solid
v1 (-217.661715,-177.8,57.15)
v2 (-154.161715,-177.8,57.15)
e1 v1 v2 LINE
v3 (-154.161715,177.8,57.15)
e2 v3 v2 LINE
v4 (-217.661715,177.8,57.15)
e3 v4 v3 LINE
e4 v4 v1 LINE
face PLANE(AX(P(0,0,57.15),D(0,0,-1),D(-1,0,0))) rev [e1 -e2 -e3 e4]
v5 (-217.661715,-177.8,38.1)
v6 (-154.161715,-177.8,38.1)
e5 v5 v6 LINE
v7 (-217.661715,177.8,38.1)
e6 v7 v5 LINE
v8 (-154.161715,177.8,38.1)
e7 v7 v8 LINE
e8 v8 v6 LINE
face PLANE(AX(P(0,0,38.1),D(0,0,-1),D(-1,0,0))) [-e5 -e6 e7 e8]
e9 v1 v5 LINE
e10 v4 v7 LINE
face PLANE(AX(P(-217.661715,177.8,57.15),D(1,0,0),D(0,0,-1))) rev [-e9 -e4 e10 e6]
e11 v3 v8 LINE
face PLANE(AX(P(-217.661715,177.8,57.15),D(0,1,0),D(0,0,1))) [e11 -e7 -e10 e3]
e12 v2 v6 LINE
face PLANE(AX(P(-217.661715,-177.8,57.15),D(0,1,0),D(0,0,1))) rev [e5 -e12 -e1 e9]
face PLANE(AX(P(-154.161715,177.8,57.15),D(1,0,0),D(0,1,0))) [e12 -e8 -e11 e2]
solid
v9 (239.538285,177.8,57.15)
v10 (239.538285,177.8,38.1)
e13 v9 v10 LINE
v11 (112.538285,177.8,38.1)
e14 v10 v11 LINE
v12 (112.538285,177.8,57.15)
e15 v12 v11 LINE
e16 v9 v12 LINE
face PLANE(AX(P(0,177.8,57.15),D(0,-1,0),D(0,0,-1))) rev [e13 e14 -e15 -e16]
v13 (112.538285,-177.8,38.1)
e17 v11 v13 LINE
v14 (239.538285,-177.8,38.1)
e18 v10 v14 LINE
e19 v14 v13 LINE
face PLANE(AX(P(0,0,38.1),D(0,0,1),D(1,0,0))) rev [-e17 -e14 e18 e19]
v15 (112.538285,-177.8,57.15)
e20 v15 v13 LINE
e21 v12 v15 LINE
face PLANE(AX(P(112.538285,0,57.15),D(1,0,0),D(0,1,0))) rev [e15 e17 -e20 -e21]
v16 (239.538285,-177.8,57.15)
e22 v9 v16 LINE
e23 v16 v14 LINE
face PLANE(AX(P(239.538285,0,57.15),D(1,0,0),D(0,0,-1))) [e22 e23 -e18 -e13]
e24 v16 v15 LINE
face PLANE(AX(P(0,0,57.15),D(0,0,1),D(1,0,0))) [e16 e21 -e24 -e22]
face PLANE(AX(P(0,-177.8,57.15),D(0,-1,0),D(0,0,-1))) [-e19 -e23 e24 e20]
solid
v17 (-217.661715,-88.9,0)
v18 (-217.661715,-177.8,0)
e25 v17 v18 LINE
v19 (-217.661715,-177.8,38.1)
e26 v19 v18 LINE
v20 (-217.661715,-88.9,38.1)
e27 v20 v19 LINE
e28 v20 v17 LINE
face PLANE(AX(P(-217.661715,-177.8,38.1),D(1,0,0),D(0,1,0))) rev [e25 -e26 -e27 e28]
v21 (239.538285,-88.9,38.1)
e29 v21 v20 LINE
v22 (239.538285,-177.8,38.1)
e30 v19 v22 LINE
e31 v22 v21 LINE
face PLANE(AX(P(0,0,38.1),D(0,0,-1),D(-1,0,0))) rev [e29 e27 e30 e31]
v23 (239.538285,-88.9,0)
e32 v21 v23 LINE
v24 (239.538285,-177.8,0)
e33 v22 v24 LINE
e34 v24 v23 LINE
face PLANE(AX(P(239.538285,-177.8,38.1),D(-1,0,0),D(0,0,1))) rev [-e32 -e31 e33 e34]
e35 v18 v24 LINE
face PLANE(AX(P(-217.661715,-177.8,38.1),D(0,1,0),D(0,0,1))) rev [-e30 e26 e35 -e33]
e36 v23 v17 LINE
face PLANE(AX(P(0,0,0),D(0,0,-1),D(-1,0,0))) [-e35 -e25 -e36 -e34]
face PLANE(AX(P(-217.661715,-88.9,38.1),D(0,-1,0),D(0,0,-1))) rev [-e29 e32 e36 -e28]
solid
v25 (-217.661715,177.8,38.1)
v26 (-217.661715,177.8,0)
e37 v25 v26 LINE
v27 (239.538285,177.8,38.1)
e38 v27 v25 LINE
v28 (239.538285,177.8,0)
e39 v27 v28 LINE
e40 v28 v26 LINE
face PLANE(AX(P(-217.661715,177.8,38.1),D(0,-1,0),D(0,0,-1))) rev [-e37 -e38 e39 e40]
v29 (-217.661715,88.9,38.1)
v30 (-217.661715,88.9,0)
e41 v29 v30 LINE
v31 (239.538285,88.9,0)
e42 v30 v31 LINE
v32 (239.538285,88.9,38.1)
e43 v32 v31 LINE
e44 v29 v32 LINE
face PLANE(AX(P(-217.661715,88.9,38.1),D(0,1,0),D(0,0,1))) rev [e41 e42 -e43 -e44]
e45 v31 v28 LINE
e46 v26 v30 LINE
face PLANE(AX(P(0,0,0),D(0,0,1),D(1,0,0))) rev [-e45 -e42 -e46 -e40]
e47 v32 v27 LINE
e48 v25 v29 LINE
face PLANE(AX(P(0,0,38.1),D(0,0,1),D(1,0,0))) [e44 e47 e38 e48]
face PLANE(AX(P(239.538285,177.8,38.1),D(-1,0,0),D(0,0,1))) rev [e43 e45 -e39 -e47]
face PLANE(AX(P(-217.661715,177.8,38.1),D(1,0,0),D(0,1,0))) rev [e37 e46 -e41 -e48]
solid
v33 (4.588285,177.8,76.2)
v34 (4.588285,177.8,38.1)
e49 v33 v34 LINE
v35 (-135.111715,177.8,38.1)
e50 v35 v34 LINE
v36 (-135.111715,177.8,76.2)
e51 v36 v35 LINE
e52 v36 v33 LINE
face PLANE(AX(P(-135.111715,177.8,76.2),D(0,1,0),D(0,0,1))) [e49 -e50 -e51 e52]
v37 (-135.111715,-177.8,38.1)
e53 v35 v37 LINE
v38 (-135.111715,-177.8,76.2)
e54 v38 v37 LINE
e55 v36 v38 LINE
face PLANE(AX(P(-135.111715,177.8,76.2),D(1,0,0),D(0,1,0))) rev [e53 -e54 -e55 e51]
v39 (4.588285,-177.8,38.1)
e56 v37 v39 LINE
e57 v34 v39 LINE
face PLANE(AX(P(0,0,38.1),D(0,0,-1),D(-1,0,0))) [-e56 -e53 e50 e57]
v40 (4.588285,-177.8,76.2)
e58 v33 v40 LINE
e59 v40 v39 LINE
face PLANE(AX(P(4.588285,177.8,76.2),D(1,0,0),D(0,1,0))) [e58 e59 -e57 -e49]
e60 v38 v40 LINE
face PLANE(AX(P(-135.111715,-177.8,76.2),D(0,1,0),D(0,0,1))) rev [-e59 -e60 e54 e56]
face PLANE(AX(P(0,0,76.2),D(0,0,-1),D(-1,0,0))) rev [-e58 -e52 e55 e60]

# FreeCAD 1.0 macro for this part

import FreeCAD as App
import Part
import Sketcher

V = App.Vector
Q = App.Units.Quantity

doc = App.newDocument("Part")
body = doc.addObject("PartDesign::Body", "Body")

sketch1 = body.newObject("Sketcher::SketchObject", "Sketch")
sketch1.AttachmentSupport = (doc.getObject("XY_Plane"), [""])
sketch1.MapMode = "FlatFace"
sketch1.addGeometry([
    Part.LineSegment(V(-218, 178, 0), V(-218, 89, 0)),
    Part.LineSegment(V(-218, 89, 0), V(240, 89, 0)),
    Part.LineSegment(V(240, 89, 0), V(240, 178, 0)),
    Part.LineSegment(V(240, 178, 0), V(-218, 178, 0)),
], False)
sketch1.addConstraint([
    Sketcher.Constraint("Coincident", 0, 2, 1, 1),
    Sketcher.Constraint("Coincident", 1, 2, 2, 1),
    Sketcher.Constraint("Coincident", 2, 2, 3, 1),
    Sketcher.Constraint("Coincident", 3, 2, 0, 1),
    Sketcher.Constraint("Vertical", 0),
    Sketcher.Constraint("Horizontal", 1),
    Sketcher.Constraint("Vertical", 2),
    Sketcher.Constraint("Horizontal", 3),
    Sketcher.Constraint("DistanceX", 1, 1, 1, 2, Q("18 in")),
    Sketcher.Constraint("DistanceY", 0, 2, 0, 1, Q("3.5 in")),
    Sketcher.Constraint("DistanceY", -1, 1, 2, 2, Q("7 in")),
    Sketcher.Constraint("DistanceX", 0, 2, -1, 1, 217.661715),
])
pad1 = body.newObject("PartDesign::Pad", "Pad")
pad1.Profile = sketch1
pad1.Length = Q("1.5 in")
body2 = doc.addObject("PartDesign::Body", "Body001")

sketch2 = body2.newObject("Sketcher::SketchObject", "Sketch001")
sketch2.AttachmentSupport = (doc.getObject("XY_Plane001"), [""])
sketch2.MapMode = "FlatFace"
sketch2.addGeometry([
    Part.LineSegment(V(-218, -89, 0), V(-218, -178, 0)),
    Part.LineSegment(V(-218, -178, 0), V(240, -178, 0)),
    Part.LineSegment(V(240, -178, 0), V(240, -89, 0)),
    Part.LineSegment(V(240, -89, 0), V(-218, -89, 0)),
], False)
sketch2.addConstraint([
    Sketcher.Constraint("Coincident", 0, 2, 1, 1),
    Sketcher.Constraint("Coincident", 1, 2, 2, 1),
    Sketcher.Constraint("Coincident", 2, 2, 3, 1),
    Sketcher.Constraint("Coincident", 3, 2, 0, 1),
    Sketcher.Constraint("Vertical", 0),
    Sketcher.Constraint("Horizontal", 1),
    Sketcher.Constraint("Vertical", 2),
    Sketcher.Constraint("Horizontal", 3),
    Sketcher.Constraint("DistanceX", 1, 1, 1, 2, Q("18 in")),
    Sketcher.Constraint("DistanceY", 0, 2, 0, 1, Q("3.5 in")),
    Sketcher.Constraint("DistanceY", 0, 2, -1, 1, Q("7 in")),
    Sketcher.Constraint("DistanceX", 0, 2, -1, 1, 217.661715),
])
pad2 = body2.newObject("PartDesign::Pad", "Pad001")
pad2.Profile = sketch2
pad2.Length = Q("1.5 in")
body3 = doc.addObject("PartDesign::Body", "Body002")
body3.AllowCompound = True

sketch3 = body3.newObject("Sketcher::SketchObject", "Sketch002")
sketch3.AttachmentSupport = (doc.getObject("XY_Plane002"), [""])
sketch3.MapMode = "FlatFace"
sketch3.AttachmentOffset = App.Placement(V(0, 0, 1.5 * 25.4), App.Rotation())
sketch3.addGeometry([
    Part.LineSegment(V(113, -178, 0), V(240, -178, 0)),
    Part.LineSegment(V(240, -178, 0), V(240, 178, 0)),
    Part.LineSegment(V(240, 178, 0), V(113, 178, 0)),
    Part.LineSegment(V(113, 178, 0), V(113, -178, 0)),
    Part.LineSegment(V(-218, 178, 0), V(-218, -178, 0)),
    Part.LineSegment(V(-218, -178, 0), V(-154, -178, 0)),
    Part.LineSegment(V(-154, -178, 0), V(-154, 178, 0)),
    Part.LineSegment(V(-154, 178, 0), V(-218, 178, 0)),
], False)
sketch3.addConstraint([
    Sketcher.Constraint("Coincident", 0, 2, 1, 1),
    Sketcher.Constraint("Coincident", 1, 2, 2, 1),
    Sketcher.Constraint("Coincident", 2, 2, 3, 1),
    Sketcher.Constraint("Coincident", 3, 2, 0, 1),
    Sketcher.Constraint("Coincident", 4, 2, 5, 1),
    Sketcher.Constraint("Coincident", 5, 2, 6, 1),
    Sketcher.Constraint("Coincident", 6, 2, 7, 1),
    Sketcher.Constraint("Coincident", 7, 2, 4, 1),
    Sketcher.Constraint("Horizontal", 0),
    Sketcher.Constraint("Vertical", 1),
    Sketcher.Constraint("Horizontal", 2),
    Sketcher.Constraint("Vertical", 3),
    Sketcher.Constraint("Vertical", 4),
    Sketcher.Constraint("Horizontal", 5),
    Sketcher.Constraint("Vertical", 6),
    Sketcher.Constraint("Horizontal", 7),
    Sketcher.Constraint("Horizontal", 3, 2, 4, 2),
    Sketcher.Constraint("Horizontal", 2, 2, 6, 2),
    Sketcher.Constraint("DistanceX", 0, 1, 0, 2, Q("5 in")),
    Sketcher.Constraint("DistanceY", 1, 1, 1, 2, Q("14 in")),
    Sketcher.Constraint("DistanceX", 5, 1, 5, 2, Q("2.5 in")),
    Sketcher.Constraint("DistanceY", 0, 2, -1, 1, Q("7 in")),
    Sketcher.Constraint("DistanceX", 4, 2, 3, 2, Q("13 in")),
    Sketcher.Constraint("DistanceX", -1, 1, 0, 2, 239.538285),
])
pad3 = body3.newObject("PartDesign::Pad", "Pad002")
pad3.Profile = sketch3
pad3.Length = Q("0.75 in")
body4 = doc.addObject("PartDesign::Body", "Body003")

sketch4 = body4.newObject("Sketcher::SketchObject", "Sketch003")
sketch4.AttachmentSupport = (doc.getObject("XY_Plane003"), [""])
sketch4.MapMode = "FlatFace"
sketch4.AttachmentOffset = App.Placement(V(0, 0, 1.5 * 25.4), App.Rotation())
sketch4.addGeometry([
    Part.LineSegment(V(-135, 178, 0), V(-135, -178, 0)),
    Part.LineSegment(V(-135, -178, 0), V(5, -178, 0)),
    Part.LineSegment(V(5, -178, 0), V(5, 178, 0)),
    Part.LineSegment(V(5, 178, 0), V(-135, 178, 0)),
], False)
sketch4.addConstraint([
    Sketcher.Constraint("Coincident", 0, 2, 1, 1),
    Sketcher.Constraint("Coincident", 1, 2, 2, 1),
    Sketcher.Constraint("Coincident", 2, 2, 3, 1),
    Sketcher.Constraint("Coincident", 3, 2, 0, 1),
    Sketcher.Constraint("Vertical", 0),
    Sketcher.Constraint("Horizontal", 1),
    Sketcher.Constraint("Vertical", 2),
    Sketcher.Constraint("Horizontal", 3),
    Sketcher.Constraint("DistanceY", 0, 2, 0, 1, Q("14 in")),
    Sketcher.Constraint("DistanceX", 1, 1, 1, 2, Q("5.5 in")),
    Sketcher.Constraint("DistanceY", 0, 2, -1, 1, Q("7 in")),
    Sketcher.Constraint("DistanceX", 0, 2, -1, 1, 135.111715),
])
pad4 = body4.newObject("PartDesign::Pad", "Pad003")
pad4.Profile = sketch4
pad4.Length = Q("1.5 in")

doc.recompute()
